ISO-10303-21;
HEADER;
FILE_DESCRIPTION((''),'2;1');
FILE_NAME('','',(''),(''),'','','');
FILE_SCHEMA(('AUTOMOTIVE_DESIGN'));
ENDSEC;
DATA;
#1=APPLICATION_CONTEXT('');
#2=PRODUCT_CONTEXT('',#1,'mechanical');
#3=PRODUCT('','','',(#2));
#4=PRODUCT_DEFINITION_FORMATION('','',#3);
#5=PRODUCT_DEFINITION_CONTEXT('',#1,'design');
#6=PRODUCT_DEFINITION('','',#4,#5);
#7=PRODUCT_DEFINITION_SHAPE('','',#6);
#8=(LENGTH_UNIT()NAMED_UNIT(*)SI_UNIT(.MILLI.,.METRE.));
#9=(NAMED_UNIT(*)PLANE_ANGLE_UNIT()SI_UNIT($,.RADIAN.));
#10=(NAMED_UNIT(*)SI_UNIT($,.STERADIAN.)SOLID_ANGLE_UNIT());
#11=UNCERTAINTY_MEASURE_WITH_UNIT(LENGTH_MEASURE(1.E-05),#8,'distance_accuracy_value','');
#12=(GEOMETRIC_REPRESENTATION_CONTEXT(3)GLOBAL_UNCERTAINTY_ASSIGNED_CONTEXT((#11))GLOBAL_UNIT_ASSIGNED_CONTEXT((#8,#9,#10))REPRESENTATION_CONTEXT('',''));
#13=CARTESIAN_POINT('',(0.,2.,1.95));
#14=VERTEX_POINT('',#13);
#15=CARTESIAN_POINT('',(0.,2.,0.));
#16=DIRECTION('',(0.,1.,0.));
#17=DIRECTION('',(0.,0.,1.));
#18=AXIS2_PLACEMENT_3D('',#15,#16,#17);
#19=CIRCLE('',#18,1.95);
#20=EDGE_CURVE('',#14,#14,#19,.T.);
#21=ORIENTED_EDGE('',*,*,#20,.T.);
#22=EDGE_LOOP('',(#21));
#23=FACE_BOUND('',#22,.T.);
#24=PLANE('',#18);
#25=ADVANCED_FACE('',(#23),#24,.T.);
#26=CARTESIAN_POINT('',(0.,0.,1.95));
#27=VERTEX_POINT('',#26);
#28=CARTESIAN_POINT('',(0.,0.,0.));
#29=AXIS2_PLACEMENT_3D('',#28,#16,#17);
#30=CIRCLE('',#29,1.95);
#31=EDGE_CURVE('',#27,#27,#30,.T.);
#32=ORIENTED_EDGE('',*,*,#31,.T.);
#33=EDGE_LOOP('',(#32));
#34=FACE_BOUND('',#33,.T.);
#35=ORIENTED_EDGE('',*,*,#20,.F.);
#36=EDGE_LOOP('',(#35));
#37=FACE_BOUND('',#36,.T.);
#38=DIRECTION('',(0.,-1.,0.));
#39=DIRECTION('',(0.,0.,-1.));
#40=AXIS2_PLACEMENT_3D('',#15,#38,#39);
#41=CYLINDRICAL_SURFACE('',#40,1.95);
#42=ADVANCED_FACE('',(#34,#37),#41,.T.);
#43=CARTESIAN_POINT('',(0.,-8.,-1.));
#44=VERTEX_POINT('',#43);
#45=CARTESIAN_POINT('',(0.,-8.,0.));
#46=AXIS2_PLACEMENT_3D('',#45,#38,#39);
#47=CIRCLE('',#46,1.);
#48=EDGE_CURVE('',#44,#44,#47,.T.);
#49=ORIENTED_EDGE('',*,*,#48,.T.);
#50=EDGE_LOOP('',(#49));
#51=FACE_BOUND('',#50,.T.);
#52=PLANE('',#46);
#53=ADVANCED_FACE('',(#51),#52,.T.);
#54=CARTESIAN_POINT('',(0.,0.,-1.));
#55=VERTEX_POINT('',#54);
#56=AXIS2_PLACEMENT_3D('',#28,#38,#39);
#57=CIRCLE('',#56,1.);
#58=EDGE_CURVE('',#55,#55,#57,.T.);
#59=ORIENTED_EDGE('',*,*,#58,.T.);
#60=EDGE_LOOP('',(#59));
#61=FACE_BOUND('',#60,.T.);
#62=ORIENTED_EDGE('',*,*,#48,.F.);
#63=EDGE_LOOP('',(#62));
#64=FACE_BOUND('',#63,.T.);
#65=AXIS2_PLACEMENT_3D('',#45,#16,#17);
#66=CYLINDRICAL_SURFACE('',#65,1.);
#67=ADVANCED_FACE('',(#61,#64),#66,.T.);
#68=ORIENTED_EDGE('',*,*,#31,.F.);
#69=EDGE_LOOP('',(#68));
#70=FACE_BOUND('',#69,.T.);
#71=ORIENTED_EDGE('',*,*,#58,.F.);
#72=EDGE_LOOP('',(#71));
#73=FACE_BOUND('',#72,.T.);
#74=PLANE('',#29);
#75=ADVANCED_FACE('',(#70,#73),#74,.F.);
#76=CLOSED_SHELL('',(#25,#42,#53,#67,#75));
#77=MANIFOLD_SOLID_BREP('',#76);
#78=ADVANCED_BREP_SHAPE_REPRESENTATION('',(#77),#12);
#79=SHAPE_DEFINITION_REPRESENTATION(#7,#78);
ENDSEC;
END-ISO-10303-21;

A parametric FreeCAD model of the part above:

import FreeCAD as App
import Part
import Sketcher

V = App.Vector

doc = App.newDocument("Part")
body = doc.addObject("PartDesign::Body", "Body")

# Sketch on XZ plane
sketch1 = body.newObject("Sketcher::SketchObject", "Sketch")
sketch1.AttachmentSupport = (doc.getObject("XZ_Plane"), [""])
sketch1.MapMode = "FlatFace"
sketch1.addGeometry(Part.Circle(V(0, 0, 0), V(0, 0, 1), 1.9), False)
sketch1.addConstraint(Sketcher.Constraint("Coincident", 0, 3, -1, 1))
sketch1.addConstraint(Sketcher.Constraint("Diameter", 0, 3.9))
pad1 = body.newObject("PartDesign::Pad", "Pad")
pad1.Profile = sketch1
pad1.Length = 2
pad1.Reversed = True

# Sketch on XZ plane
sketch2 = body.newObject("Sketcher::SketchObject", "Sketch001")
sketch2.AttachmentSupport = (doc.getObject("XZ_Plane"), [""])
sketch2.MapMode = "FlatFace"
sketch2.addGeometry(Part.Circle(V(0, 0, 0), V(0, 0, 1), 1), False)
sketch2.addConstraint(Sketcher.Constraint("Coincident", 0, 3, -1, 1))
sketch2.addConstraint(Sketcher.Constraint("Diameter", 0, 2.0))
pad2 = body.newObject("PartDesign::Pad", "Pad001")
pad2.Profile = sketch2
pad2.Length = 8

doc.recompute()
